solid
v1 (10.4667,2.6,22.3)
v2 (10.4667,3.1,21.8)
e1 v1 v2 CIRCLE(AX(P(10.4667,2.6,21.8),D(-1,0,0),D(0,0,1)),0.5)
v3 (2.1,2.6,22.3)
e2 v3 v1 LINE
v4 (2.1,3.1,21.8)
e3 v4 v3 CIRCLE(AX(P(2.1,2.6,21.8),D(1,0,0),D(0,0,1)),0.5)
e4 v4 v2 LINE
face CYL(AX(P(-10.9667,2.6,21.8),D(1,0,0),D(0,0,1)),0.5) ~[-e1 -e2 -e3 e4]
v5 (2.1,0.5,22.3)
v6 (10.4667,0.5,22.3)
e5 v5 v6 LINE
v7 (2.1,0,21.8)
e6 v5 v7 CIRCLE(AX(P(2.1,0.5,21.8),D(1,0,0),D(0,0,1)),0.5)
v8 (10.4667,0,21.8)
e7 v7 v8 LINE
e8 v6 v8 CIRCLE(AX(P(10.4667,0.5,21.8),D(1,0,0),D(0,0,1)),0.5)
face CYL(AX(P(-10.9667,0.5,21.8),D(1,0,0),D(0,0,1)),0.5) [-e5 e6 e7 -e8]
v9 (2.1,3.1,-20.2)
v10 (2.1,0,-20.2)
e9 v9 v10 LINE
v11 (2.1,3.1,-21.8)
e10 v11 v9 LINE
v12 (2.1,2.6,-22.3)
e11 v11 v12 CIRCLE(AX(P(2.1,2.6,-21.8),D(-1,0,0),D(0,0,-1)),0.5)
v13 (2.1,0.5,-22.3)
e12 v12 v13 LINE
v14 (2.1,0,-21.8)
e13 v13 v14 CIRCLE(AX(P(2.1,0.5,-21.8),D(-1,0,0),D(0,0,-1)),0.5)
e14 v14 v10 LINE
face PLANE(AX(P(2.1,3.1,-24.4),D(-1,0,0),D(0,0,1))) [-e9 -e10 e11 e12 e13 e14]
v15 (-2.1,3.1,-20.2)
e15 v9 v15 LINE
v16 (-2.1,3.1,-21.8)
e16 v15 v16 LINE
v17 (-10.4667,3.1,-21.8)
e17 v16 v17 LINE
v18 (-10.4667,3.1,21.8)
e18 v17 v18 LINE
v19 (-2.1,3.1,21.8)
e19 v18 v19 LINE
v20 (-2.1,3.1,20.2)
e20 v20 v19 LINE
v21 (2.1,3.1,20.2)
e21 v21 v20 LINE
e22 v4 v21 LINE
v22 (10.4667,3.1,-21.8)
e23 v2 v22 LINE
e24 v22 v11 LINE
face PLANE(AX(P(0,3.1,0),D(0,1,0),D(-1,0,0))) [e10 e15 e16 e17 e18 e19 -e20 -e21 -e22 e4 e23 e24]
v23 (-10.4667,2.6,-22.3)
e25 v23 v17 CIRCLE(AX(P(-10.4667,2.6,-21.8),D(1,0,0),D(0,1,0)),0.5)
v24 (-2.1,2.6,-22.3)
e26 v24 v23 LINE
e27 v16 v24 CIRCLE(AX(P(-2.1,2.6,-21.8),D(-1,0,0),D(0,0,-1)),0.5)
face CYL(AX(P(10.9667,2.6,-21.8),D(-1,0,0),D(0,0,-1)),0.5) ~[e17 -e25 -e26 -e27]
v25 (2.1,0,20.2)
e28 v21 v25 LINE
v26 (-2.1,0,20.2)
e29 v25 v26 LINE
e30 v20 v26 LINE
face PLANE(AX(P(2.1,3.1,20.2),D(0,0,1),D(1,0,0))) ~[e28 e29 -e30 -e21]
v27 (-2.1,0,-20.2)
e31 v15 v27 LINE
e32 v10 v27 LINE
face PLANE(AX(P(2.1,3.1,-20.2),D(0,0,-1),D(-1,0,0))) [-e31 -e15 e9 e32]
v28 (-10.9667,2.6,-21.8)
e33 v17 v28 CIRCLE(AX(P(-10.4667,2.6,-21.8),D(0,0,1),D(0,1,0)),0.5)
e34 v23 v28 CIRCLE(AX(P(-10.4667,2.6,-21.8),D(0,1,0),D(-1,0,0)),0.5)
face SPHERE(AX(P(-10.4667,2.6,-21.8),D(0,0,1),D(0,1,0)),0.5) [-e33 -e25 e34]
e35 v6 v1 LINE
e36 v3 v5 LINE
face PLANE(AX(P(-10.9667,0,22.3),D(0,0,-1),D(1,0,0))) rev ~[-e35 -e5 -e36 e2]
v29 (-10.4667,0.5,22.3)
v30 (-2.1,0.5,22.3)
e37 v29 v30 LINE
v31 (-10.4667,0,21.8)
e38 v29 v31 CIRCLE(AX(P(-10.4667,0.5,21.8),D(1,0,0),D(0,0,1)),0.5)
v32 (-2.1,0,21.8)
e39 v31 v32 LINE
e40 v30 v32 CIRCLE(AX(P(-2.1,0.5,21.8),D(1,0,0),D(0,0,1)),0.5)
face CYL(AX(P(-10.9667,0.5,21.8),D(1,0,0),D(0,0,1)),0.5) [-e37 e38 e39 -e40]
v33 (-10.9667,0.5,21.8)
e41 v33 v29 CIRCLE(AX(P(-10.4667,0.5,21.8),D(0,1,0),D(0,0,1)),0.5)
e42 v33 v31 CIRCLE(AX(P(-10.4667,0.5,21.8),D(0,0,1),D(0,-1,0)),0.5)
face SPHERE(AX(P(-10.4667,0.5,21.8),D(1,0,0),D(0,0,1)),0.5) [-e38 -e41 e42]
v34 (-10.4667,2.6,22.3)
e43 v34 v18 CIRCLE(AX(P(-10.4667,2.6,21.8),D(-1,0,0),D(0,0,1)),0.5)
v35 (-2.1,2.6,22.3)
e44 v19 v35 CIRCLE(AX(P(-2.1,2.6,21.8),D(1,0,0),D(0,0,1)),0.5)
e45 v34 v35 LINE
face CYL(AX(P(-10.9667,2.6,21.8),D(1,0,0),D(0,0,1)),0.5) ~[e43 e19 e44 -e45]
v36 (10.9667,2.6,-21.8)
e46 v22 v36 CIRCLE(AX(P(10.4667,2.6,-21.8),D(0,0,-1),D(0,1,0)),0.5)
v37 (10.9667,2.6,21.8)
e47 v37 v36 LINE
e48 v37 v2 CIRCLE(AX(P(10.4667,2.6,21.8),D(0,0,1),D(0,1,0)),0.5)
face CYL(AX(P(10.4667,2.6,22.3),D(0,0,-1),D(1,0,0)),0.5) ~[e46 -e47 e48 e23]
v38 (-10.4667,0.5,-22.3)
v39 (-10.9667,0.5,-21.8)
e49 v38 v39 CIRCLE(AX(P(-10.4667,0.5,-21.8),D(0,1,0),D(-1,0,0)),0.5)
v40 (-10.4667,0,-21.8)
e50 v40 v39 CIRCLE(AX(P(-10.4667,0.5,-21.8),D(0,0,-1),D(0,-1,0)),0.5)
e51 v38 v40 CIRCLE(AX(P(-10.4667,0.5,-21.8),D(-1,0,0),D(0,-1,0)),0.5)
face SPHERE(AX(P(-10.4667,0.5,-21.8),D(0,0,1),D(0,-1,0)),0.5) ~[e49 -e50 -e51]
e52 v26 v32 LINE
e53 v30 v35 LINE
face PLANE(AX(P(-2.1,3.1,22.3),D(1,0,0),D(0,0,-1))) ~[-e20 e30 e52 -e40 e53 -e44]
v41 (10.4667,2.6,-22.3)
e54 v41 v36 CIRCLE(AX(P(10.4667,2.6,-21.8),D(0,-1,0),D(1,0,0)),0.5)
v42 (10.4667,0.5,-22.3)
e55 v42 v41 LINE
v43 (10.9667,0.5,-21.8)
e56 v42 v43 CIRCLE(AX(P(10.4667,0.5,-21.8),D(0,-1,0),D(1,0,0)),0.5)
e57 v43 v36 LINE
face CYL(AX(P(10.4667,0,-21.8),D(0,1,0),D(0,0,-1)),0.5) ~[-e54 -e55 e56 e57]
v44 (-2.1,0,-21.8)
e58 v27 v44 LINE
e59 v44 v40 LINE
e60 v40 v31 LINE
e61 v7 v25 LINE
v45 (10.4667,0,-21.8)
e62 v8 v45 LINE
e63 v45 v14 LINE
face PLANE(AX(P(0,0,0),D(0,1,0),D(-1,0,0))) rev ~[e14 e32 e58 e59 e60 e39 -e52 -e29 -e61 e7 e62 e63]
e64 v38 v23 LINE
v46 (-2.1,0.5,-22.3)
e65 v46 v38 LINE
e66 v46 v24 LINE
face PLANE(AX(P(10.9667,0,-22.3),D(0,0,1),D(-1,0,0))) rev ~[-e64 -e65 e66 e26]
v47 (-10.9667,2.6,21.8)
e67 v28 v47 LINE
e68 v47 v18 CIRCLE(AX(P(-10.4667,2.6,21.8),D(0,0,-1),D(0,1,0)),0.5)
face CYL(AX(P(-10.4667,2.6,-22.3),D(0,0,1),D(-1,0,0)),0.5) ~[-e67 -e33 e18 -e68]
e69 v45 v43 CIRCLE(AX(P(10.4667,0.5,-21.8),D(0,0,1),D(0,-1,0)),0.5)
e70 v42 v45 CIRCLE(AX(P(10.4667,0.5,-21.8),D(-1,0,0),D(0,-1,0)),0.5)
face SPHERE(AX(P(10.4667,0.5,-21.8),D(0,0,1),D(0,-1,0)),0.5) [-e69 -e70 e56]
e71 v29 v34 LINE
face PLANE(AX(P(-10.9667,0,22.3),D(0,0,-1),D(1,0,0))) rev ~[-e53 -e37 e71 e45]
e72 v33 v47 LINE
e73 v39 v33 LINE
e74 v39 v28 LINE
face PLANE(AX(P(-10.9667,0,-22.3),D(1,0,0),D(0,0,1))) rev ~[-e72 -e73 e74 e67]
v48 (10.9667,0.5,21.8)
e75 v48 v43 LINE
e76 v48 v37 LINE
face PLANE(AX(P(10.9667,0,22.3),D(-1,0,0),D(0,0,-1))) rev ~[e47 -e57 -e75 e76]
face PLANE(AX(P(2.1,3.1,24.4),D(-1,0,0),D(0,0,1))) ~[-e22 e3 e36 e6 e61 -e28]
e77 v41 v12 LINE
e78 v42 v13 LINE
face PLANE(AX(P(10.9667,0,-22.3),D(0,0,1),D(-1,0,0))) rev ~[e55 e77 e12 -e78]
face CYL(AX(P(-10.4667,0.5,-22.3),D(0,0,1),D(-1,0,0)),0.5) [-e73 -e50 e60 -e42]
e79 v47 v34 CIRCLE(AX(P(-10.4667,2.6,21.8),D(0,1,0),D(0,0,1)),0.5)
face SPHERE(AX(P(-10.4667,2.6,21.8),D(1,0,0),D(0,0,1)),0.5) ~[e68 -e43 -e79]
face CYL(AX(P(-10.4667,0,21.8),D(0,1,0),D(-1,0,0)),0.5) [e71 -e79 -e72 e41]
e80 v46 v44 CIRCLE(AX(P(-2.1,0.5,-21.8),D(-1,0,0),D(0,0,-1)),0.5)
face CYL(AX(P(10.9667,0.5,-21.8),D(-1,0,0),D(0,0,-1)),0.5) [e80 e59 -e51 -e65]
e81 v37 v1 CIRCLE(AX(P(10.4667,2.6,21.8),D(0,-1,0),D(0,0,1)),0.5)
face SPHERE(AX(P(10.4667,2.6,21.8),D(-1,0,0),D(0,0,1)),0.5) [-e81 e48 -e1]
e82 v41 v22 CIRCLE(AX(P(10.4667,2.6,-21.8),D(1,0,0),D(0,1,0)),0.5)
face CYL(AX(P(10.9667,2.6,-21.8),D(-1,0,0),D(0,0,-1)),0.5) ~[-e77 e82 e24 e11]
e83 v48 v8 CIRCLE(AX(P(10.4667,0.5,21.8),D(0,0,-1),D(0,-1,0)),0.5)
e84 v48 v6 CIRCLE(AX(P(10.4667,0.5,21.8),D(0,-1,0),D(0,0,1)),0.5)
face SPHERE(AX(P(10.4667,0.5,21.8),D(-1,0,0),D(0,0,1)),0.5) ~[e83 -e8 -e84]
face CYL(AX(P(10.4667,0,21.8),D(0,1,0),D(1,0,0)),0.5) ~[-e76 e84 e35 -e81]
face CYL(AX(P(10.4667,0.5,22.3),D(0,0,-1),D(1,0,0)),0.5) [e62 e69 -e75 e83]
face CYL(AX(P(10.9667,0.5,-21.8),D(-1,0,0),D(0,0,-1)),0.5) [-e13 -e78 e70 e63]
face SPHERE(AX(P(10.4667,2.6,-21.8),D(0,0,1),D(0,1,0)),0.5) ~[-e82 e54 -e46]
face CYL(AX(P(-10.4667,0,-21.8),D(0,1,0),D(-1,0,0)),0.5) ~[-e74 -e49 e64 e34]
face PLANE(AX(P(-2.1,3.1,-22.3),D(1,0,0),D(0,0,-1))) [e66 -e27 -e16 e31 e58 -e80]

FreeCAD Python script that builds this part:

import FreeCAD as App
import Part
import Sketcher

V = App.Vector


def add_polygon(sketch, points):
    """Adds a closed chain of lines whose ends are joined by coincident constraints."""
    first, n = sketch.GeometryCount, len(points)
    for a, b in zip(points, points[1:] + points[:1]):
        sketch.addGeometry(Part.LineSegment(App.Vector(*a, 0), App.Vector(*b, 0)), False)
    for i in range(n):
        sketch.addConstraint(Sketcher.Constraint("Coincident", first + i, 2, first + (i + 1) % n, 1))

doc = App.newDocument("Part")
body = doc.addObject("PartDesign::Body", "Body")

sketch1 = body.newObject("Sketcher::SketchObject", "Sketch")
sketch1.AttachmentSupport = (doc.getObject("XZ_Plane"), [""])
sketch1.MapMode = "FlatFace"
add_polygon(sketch1, [(-10.9667, -22.3), (-10.9667, 22.3), (10.9667, 22.3), (10.9667, -22.3)])
sketch1.addConstraint(Sketcher.Constraint("Vertical", 0))
sketch1.addConstraint(Sketcher.Constraint("Horizontal", 1))
sketch1.addConstraint(Sketcher.Constraint("Vertical", 2))
sketch1.addConstraint(Sketcher.Constraint("Horizontal", 3))
sketch1.addConstraint(Sketcher.Constraint("Symmetric", 0, 2, 2, 2, -1, 1))
sketch1.addConstraint(Sketcher.Constraint("DistanceY", 0, 1, 0, 2, 44.6))
sketch1.addConstraint(Sketcher.Constraint("DistanceX", 1, 1, 1, 2, 21.9334))
pad1 = body.newObject("PartDesign::Pad", "Pad")
pad1.Profile = sketch1
pad1.Length = 3.1
pad1.Reversed = True
doc.recompute()

fillet = body.newObject("PartDesign::Fillet", "Fillet")
fillet.Base = (pad1, ["Edge1"])
fillet.UseAllEdges = True
fillet.Radius = 0.5

sketch2 = body.newObject("Sketcher::SketchObject", "Sketch001")
sketch2.AttachmentSupport = (doc.getObject("XZ_Plane"), [""])
sketch2.MapMode = "FlatFace"
sketch2.AttachmentOffset = App.Placement(V(0, 0, -3.1), App.Rotation())
add_polygon(sketch2, [(2.1, -24.4), (-2.1, -24.4), (-2.1, -20.2), (2.1, -20.2)])
sketch2.addConstraint(Sketcher.Constraint("Horizontal", 0))
sketch2.addConstraint(Sketcher.Constraint("Vertical", 1))
sketch2.addConstraint(Sketcher.Constraint("Horizontal", 2))
sketch2.addConstraint(Sketcher.Constraint("Vertical", 3))
sketch2.addConstraint(Sketcher.Constraint("Equal", 2, 1))
sketch2.addConstraint(Sketcher.Constraint("DistanceX", 0, 2, 0, 1, 4.2))
sketch2.addConstraint(Sketcher.Constraint("DistanceX", 0, 2, -1, 1, 2.1))
sketch2.addConstraint(Sketcher.Constraint("DistanceY", 0, 2, -1, 1, 24.4))
pocket1 = body.newObject("PartDesign::Pocket", "Pocket")
pocket1.Profile = sketch2
pocket1.Length = 10
pocket1.Reversed = True
doc.recompute()

mirrored = body.newObject("PartDesign::Mirrored", "Mirrored")
mirrored.Originals = [pocket1]
mirrored.MirrorPlane = (doc.getObject("XY_Plane"), [""])
body.Tip = mirrored

doc.recompute()
